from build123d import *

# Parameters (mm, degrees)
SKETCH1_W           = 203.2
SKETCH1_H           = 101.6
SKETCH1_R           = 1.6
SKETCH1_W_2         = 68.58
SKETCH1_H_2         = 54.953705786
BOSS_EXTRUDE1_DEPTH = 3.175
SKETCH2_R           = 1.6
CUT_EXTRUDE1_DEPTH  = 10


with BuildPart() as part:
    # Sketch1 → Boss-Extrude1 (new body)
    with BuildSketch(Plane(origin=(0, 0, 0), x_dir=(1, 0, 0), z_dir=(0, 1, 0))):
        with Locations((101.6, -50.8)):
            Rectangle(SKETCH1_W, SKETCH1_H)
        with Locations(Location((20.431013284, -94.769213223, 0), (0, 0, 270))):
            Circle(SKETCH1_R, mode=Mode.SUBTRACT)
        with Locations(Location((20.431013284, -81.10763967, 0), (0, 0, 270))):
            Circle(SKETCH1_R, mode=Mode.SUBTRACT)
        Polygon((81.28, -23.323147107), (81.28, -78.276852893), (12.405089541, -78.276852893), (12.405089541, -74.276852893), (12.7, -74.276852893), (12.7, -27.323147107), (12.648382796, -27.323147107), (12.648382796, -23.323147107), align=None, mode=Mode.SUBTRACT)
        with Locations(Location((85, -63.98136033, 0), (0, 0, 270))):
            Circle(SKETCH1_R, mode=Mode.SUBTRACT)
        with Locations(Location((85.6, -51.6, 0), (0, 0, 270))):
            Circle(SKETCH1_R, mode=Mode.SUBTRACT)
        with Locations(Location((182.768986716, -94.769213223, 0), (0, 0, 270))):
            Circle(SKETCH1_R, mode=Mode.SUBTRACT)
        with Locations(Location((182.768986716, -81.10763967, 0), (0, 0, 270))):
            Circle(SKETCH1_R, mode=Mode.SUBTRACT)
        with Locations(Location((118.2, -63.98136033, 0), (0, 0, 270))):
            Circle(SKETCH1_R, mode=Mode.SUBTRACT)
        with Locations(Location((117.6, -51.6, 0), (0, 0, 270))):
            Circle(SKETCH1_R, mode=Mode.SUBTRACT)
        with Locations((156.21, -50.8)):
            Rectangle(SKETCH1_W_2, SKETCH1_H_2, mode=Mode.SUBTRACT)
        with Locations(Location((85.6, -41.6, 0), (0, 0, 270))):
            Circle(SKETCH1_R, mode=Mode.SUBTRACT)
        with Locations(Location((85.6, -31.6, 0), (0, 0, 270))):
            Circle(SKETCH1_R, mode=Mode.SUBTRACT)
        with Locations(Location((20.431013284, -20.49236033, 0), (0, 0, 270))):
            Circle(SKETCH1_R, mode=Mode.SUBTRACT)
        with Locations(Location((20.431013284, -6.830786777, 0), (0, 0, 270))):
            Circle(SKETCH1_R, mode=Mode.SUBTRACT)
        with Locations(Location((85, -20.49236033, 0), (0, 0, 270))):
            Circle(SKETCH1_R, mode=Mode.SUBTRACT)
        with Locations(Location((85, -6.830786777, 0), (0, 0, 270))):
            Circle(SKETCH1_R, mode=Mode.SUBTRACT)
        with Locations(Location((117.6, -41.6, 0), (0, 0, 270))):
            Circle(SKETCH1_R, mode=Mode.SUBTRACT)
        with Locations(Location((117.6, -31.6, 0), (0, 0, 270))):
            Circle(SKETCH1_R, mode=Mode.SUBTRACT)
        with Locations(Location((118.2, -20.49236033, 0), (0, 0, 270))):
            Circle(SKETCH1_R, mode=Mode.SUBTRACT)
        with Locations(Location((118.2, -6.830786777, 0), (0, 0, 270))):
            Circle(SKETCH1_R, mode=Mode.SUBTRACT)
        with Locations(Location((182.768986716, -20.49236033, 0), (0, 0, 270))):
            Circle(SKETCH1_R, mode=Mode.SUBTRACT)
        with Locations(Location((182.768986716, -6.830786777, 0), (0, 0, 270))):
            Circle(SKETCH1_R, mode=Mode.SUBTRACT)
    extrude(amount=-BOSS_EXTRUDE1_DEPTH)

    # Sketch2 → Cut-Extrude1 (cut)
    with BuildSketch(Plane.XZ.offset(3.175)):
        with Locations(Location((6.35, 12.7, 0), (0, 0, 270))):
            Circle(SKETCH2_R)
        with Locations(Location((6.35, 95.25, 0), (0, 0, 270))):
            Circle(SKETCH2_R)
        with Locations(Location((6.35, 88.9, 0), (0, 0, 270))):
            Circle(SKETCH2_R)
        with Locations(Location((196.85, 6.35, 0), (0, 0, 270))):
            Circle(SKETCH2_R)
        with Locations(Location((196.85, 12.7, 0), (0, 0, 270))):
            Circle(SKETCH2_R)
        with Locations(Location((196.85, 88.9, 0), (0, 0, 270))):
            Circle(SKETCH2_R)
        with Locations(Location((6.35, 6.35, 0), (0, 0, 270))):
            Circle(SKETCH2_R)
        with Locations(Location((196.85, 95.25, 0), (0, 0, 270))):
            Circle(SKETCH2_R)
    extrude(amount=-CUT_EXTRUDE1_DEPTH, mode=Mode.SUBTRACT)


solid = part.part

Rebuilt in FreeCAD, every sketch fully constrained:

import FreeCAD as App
import Part
import Sketcher

V = App.Vector
Q = App.Units.Quantity


def add_polygon(sketch, points):
    """Adds a closed chain of lines whose ends are joined by coincident constraints."""
    first, n = sketch.GeometryCount, len(points)
    for a, b in zip(points, points[1:] + points[:1]):
        sketch.addGeometry(Part.LineSegment(App.Vector(*a, 0), App.Vector(*b, 0)), False)
    for i in range(n):
        sketch.addConstraint(Sketcher.Constraint("Coincident", first + i, 2, first + (i + 1) % n, 1))

doc = App.newDocument("Part")
params = doc.addObject("Spreadsheet::Sheet", "Params")
for row, (alias, value) in enumerate([
    ("sketch1_width", "8 in"),
    ("sketch1_height", "4 in"),
    ("sketch1_width2", "2.7 in"),
    ("pad1_length", "0.125 in"),
    ("pocket1_length", "10 mm"),
], start=1):
    params.set(f"A{row}", alias)
    params.set(f"B{row}", "=" + value)
    params.setAlias(f"B{row}", alias)

body = doc.addObject("PartDesign::Body", "Body")

# Sketch on XZ plane
sketch1 = body.newObject("Sketcher::SketchObject", "Sketch")
sketch1.AttachmentSupport = (doc.getObject("XZ_Plane"), [""])
sketch1.MapMode = "FlatFace"
add_polygon(sketch1, [(0, 0), (0, 101.6), (203.2, 101.6), (203.2, 0)])  # lines 0-3
sketch1.addGeometry(Part.Circle(V(20.431013, 94.769213, 0), V(0, 0, 1), 1.6), False)  # 4
sketch1.addGeometry(Part.Circle(V(20.431013, 81.10764, 0), V(0, 0, 1), 1.6), False)  # 5
add_polygon(sketch1, [(12.648383, 23.323147), (81.28, 23.323147), (81.28, 78.276853), (12.40509, 78.276853), (12.40509, 74.276853), (12.7, 74.276853), (12.7, 27.323147), (12.648383, 27.323147)])  # lines 6-13
sketch1.addGeometry(Part.Circle(V(85, 63.98136, 0), V(0, 0, 1), 1.6), False)  # 14
sketch1.addGeometry(Part.Circle(V(85.6, 51.6, 0), V(0, 0, 1), 1.6), False)  # 15
sketch1.addGeometry(Part.Circle(V(182.768987, 94.769213, 0), V(0, 0, 1), 1.6), False)  # 16
sketch1.addGeometry(Part.Circle(V(182.768987, 81.10764, 0), V(0, 0, 1), 1.6), False)  # 17
sketch1.addGeometry(Part.Circle(V(118.2, 63.98136, 0), V(0, 0, 1), 1.6), False)  # 18
sketch1.addGeometry(Part.Circle(V(117.6, 51.6, 0), V(0, 0, 1), 1.6), False)  # 19
sketch1.addGeometry(Part.Circle(V(85.6, 41.6, 0), V(0, 0, 1), 1.6), False)  # 20
sketch1.addGeometry(Part.Circle(V(85.6, 31.6, 0), V(0, 0, 1), 1.6), False)  # 21
sketch1.addGeometry(Part.Circle(V(20.431013, 20.49236, 0), V(0, 0, 1), 1.6), False)  # 22
sketch1.addGeometry(Part.Circle(V(20.431013, 6.830787, 0), V(0, 0, 1), 1.6), False)  # 23
sketch1.addGeometry(Part.Circle(V(85, 20.49236, 0), V(0, 0, 1), 1.6), False)  # 24
sketch1.addGeometry(Part.Circle(V(85, 6.830787, 0), V(0, 0, 1), 1.6), False)  # 25
sketch1.addGeometry(Part.Circle(V(117.6, 41.6, 0), V(0, 0, 1), 1.6), False)  # 26
sketch1.addGeometry(Part.Circle(V(117.6, 31.6, 0), V(0, 0, 1), 1.6), False)  # 27
add_polygon(sketch1, [(190.5, 78.276853), (121.92, 78.276853), (121.92, 23.323147), (190.5, 23.323147)])  # lines 28-31
sketch1.addGeometry(Part.Circle(V(118.2, 20.49236, 0), V(0, 0, 1), 1.6), False)  # 32
sketch1.addGeometry(Part.Circle(V(118.2, 6.830787, 0), V(0, 0, 1), 1.6), False)  # 33
sketch1.addGeometry(Part.Circle(V(182.768987, 20.49236, 0), V(0, 0, 1), 1.6), False)  # 34
sketch1.addGeometry(Part.Circle(V(182.768987, 6.830787, 0), V(0, 0, 1), 1.6), False)  # 35
sketch1.addConstraint([
    Sketcher.Constraint("Vertical", 0),
    Sketcher.Constraint("Horizontal", 1),
    Sketcher.Constraint("Vertical", 2),
    Sketcher.Constraint("Horizontal", 3),
    Sketcher.Constraint("Horizontal", 6),
    Sketcher.Constraint("Vertical", 7),
    Sketcher.Constraint("Horizontal", 8),
    Sketcher.Constraint("Vertical", 9),
    Sketcher.Constraint("Horizontal", 10),
    Sketcher.Constraint("Vertical", 11),
    Sketcher.Constraint("Horizontal", 12),
    Sketcher.Constraint("Vertical", 13),
    Sketcher.Constraint("Horizontal", 28),
    Sketcher.Constraint("Vertical", 29),
    Sketcher.Constraint("Horizontal", 30),
    Sketcher.Constraint("Vertical", 31),
    Sketcher.Constraint("Coincident", 3, 2, -1, 1),
    Sketcher.Constraint("Equal", 4, 5),
    Sketcher.Constraint("Equal", 5, 14),
    Sketcher.Constraint("Equal", 14, 15),
    Sketcher.Constraint("Equal", 15, 16),
    Sketcher.Constraint("Equal", 16, 17),
    Sketcher.Constraint("Equal", 17, 18),
    Sketcher.Constraint("Equal", 18, 19),
    Sketcher.Constraint("Equal", 19, 20),
    Sketcher.Constraint("Equal", 20, 21),
    Sketcher.Constraint("Equal", 21, 22),
    Sketcher.Constraint("Equal", 22, 23),
    Sketcher.Constraint("Equal", 23, 24),
    Sketcher.Constraint("Equal", 24, 25),
    Sketcher.Constraint("Equal", 25, 26),
    Sketcher.Constraint("Equal", 26, 27),
    Sketcher.Constraint("Equal", 27, 32),
    Sketcher.Constraint("Equal", 32, 33),
    Sketcher.Constraint("Equal", 33, 34),
    Sketcher.Constraint("Equal", 34, 35),
    Sketcher.Constraint("Horizontal", 4, 3, 16, 3),
    Sketcher.Constraint("Horizontal", 5, 3, 17, 3),
    Sketcher.Constraint("Horizontal", 14, 3, 18, 3),
    Sketcher.Constraint("Horizontal", 15, 3, 19, 3),
    Sketcher.Constraint("Horizontal", 22, 3, 24, 3),
    Sketcher.Constraint("Horizontal", 23, 3, 25, 3),
    Sketcher.Constraint("Horizontal", 20, 3, 26, 3),
    Sketcher.Constraint("Horizontal", 21, 3, 27, 3),
    Sketcher.Constraint("Horizontal", 24, 3, 32, 3),
    Sketcher.Constraint("Horizontal", 25, 3, 33, 3),
    Sketcher.Constraint("Horizontal", 32, 3, 34, 3),
    Sketcher.Constraint("Horizontal", 33, 3, 35, 3),
    Sketcher.Constraint("Horizontal", 8, 2, 28, 2),
    Sketcher.Constraint("Horizontal", 13, 2, 29, 2),
    Sketcher.Constraint("Vertical", 4, 3, 5, 3),
    Sketcher.Constraint("Vertical", 16, 3, 17, 3),
    Sketcher.Constraint("Vertical", 15, 3, 20, 3),
    Sketcher.Constraint("Vertical", 20, 3, 21, 3),
    Sketcher.Constraint("Vertical", 5, 3, 22, 3),
    Sketcher.Constraint("Vertical", 22, 3, 23, 3),
    Sketcher.Constraint("Vertical", 14, 3, 24, 3),
    Sketcher.Constraint("Vertical", 24, 3, 25, 3),
    Sketcher.Constraint("Vertical", 19, 3, 26, 3),
    Sketcher.Constraint("Vertical", 26, 3, 27, 3),
    Sketcher.Constraint("Vertical", 18, 3, 32, 3),
    Sketcher.Constraint("Vertical", 32, 3, 33, 3),
    Sketcher.Constraint("Vertical", 17, 3, 34, 3),
    Sketcher.Constraint("Vertical", 34, 3, 35, 3),
    Sketcher.Constraint("Equal", 9, 13),
    Sketcher.Constraint("DistanceX", 1, 1, 1, 2, Q("8 in")),
    Sketcher.Constraint("DistanceY", 0, 1, 0, 2, Q("4 in")),
    Sketcher.Constraint("DistanceX", 28, 2, 28, 1, Q("2.7 in")),
    Sketcher.Constraint("DistanceX", -1, 1, 6, 2, Q("3.2 in")),
    Sketcher.Constraint("DistanceX", -1, 1, 10, 2, Q("0.5 in")),
    Sketcher.Constraint("DistanceX", -1, 1, 28, 2, Q("4.8 in")),
    Sketcher.Constraint("Diameter", 4, Q("3.2 mm")),
    Sketcher.Constraint("DistanceY", 9, 2, 9, 1, Q("4 mm")),
    Sketcher.Constraint("DistanceX", 8, 2, 8, 1, Q("68.87491 mm")),
    Sketcher.Constraint("DistanceX", -1, 1, 14, 3, Q("85 mm")),
    Sketcher.Constraint("DistanceX", -1, 1, 15, 3, Q("85.6 mm")),
    Sketcher.Constraint("DistanceY", -1, 1, 15, 3, Q("51.6 mm")),
    Sketcher.Constraint("DistanceX", -1, 1, 18, 3, Q("118.2 mm")),
    Sketcher.Constraint("DistanceX", -1, 1, 19, 3, Q("117.6 mm")),
    Sketcher.Constraint("DistanceY", -1, 1, 20, 3, Q("41.6 mm")),
    Sketcher.Constraint("DistanceY", -1, 1, 21, 3, Q("31.6 mm")),
    Sketcher.Constraint("DistanceY", 24, 3, 14, 3, Q("43.489 mm")),
    Sketcher.Constraint("DistanceX", 6, 1, 6, 2, Q("68.631617 mm")),
    Sketcher.Constraint("DistanceY", 7, 1, 7, 2, Q("54.953706 mm")),
    Sketcher.Constraint("DistanceY", -1, 1, 5, 3, Q("81.10764 mm")),
    Sketcher.Constraint("DistanceY", -1, 1, 14, 3, Q("63.98136 mm")),
    Sketcher.Constraint("DistanceY", 25, 3, 6, 2, Q("16.49236 mm")),
    Sketcher.Constraint("DistanceY", 8, 2, 4, 3, Q("16.49236 mm")),
    Sketcher.Constraint("DistanceX", 12, 2, 22, 3, Q("7.78263 mm")),
    Sketcher.Constraint("DistanceY", -1, 1, 4, 3, Q("94.769213 mm")),
    Sketcher.Constraint("DistanceX", -1, 1, 16, 3, Q("182.768987 mm")),
])
sketch1.setExpression("Constraints[81]", "Params.sketch1_width")
sketch1.setExpression("Constraints[82]", "Params.sketch1_height")
sketch1.setExpression("Constraints[83]", "Params.sketch1_width2")
pad1 = body.newObject("PartDesign::Pad", "Pad")
pad1.Profile = sketch1
pad1.setExpression("Length", "Params.pad1_length")

# Sketch on XZ plane
sketch2 = body.newObject("Sketcher::SketchObject", "Sketch001")
sketch2.AttachmentSupport = (doc.getObject("XZ_Plane"), [""])
sketch2.MapMode = "FlatFace"
sketch2.AttachmentOffset = App.Placement(V(0, 0, 0.125 * 25.4), App.Rotation())
sketch2.addGeometry([
    Part.Circle(V(6.35, 12.7, 0), V(0, 0, 1), 1.6),  # 0
    Part.Circle(V(6.35, 95.25, 0), V(0, 0, 1), 1.6),  # 1
    Part.Circle(V(6.35, 88.9, 0), V(0, 0, 1), 1.6),  # 2
    Part.Circle(V(196.85, 6.35, 0), V(0, 0, 1), 1.6),  # 3
    Part.Circle(V(196.85, 12.7, 0), V(0, 0, 1), 1.6),  # 4
    Part.Circle(V(196.85, 88.9, 0), V(0, 0, 1), 1.6),  # 5
    Part.Circle(V(6.35, 6.35, 0), V(0, 0, 1), 1.6),  # 6
    Part.Circle(V(196.85, 95.25, 0), V(0, 0, 1), 1.6),  # 7
], False)
sketch2.addConstraint([
    Sketcher.Constraint("Equal", 0, 1),
    Sketcher.Constraint("Equal", 1, 2),
    Sketcher.Constraint("Equal", 2, 3),
    Sketcher.Constraint("Equal", 3, 4),
    Sketcher.Constraint("Equal", 4, 5),
    Sketcher.Constraint("Equal", 5, 6),
    Sketcher.Constraint("Equal", 6, 7),
    Sketcher.Constraint("Horizontal", 0, 3, 4, 3),
    Sketcher.Constraint("Horizontal", 2, 3, 5, 3),
    Sketcher.Constraint("Horizontal", 3, 3, 6, 3),
    Sketcher.Constraint("Horizontal", 1, 3, 7, 3),
    Sketcher.Constraint("Vertical", 0, 3, 1, 3),
    Sketcher.Constraint("Vertical", 1, 3, 2, 3),
    Sketcher.Constraint("Vertical", 3, 3, 4, 3),
    Sketcher.Constraint("Vertical", 4, 3, 5, 3),
    Sketcher.Constraint("Vertical", 2, 3, 6, 3),
    Sketcher.Constraint("Vertical", 5, 3, 7, 3),
    Sketcher.Constraint("DistanceY", 0, 3, 2, 3, Q("3 in")),
    Sketcher.Constraint("DistanceY", -1, 1, 0, 3, Q("0.5 in")),
    Sketcher.Constraint("DistanceX", 0, 3, 3, 3, Q("7.5 in")),
    Sketcher.Constraint("DistanceY", 3, 3, 1, 3, Q("3.5 in")),
    Sketcher.Constraint("Diameter", 0, Q("3.2 mm")),
    Sketcher.Constraint("DistanceX", -1, 1, 0, 3, Q("0.25 in")),
    Sketcher.Constraint("DistanceY", -1, 1, 1, 3, Q("3.75 in")),
])
pocket1 = body.newObject("PartDesign::Pocket", "Pocket")
pocket1.Profile = sketch2
pocket1.setExpression("Length", "Params.pocket1_length")

doc.recompute()
